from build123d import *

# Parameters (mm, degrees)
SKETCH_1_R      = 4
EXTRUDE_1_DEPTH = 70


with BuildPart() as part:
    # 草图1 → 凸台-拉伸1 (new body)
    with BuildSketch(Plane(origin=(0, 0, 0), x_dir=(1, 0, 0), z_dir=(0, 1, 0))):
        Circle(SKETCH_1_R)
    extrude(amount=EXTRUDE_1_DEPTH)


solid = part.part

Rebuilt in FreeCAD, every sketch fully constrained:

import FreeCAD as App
import Part
import Sketcher

V = App.Vector

doc = App.newDocument("Part")
params = doc.addObject("Spreadsheet::Sheet", "Params")
for row, (alias, value) in enumerate([
    ("sketch1_diameter", "8 mm"),
    ("pad1_length", "70 mm"),
], start=1):
    params.set(f"A{row}", alias)
    params.set(f"B{row}", "=" + value)
    params.setAlias(f"B{row}", alias)

body = doc.addObject("PartDesign::Body", "Body")

sketch1 = doc.addObject("Sketcher::SketchObject", "Sketch")
body.addObject(sketch1)
sketch1.AttachmentSupport = (doc.XZ_Plane, [""])
sketch1.MapMode = "FlatFace"
sketch1.addGeometry(Part.Circle(V(0, 0, 0), V(0, 0, 1), 4), False)
sketch1.addConstraint([
    Sketcher.Constraint("Coincident", 0, 3, -1, 1),
    Sketcher.Constraint("Diameter", 0, 8.0),
])
sketch1.setExpression("Constraints[1]", "Params.sketch1_diameter")
pad1 = doc.addObject("PartDesign::Pad", "Pad")
body.addObject(pad1)
pad1.Profile = sketch1
pad1.setExpression("Length", "Params.pad1_length")
pad1.Reversed = True

doc.recompute()
